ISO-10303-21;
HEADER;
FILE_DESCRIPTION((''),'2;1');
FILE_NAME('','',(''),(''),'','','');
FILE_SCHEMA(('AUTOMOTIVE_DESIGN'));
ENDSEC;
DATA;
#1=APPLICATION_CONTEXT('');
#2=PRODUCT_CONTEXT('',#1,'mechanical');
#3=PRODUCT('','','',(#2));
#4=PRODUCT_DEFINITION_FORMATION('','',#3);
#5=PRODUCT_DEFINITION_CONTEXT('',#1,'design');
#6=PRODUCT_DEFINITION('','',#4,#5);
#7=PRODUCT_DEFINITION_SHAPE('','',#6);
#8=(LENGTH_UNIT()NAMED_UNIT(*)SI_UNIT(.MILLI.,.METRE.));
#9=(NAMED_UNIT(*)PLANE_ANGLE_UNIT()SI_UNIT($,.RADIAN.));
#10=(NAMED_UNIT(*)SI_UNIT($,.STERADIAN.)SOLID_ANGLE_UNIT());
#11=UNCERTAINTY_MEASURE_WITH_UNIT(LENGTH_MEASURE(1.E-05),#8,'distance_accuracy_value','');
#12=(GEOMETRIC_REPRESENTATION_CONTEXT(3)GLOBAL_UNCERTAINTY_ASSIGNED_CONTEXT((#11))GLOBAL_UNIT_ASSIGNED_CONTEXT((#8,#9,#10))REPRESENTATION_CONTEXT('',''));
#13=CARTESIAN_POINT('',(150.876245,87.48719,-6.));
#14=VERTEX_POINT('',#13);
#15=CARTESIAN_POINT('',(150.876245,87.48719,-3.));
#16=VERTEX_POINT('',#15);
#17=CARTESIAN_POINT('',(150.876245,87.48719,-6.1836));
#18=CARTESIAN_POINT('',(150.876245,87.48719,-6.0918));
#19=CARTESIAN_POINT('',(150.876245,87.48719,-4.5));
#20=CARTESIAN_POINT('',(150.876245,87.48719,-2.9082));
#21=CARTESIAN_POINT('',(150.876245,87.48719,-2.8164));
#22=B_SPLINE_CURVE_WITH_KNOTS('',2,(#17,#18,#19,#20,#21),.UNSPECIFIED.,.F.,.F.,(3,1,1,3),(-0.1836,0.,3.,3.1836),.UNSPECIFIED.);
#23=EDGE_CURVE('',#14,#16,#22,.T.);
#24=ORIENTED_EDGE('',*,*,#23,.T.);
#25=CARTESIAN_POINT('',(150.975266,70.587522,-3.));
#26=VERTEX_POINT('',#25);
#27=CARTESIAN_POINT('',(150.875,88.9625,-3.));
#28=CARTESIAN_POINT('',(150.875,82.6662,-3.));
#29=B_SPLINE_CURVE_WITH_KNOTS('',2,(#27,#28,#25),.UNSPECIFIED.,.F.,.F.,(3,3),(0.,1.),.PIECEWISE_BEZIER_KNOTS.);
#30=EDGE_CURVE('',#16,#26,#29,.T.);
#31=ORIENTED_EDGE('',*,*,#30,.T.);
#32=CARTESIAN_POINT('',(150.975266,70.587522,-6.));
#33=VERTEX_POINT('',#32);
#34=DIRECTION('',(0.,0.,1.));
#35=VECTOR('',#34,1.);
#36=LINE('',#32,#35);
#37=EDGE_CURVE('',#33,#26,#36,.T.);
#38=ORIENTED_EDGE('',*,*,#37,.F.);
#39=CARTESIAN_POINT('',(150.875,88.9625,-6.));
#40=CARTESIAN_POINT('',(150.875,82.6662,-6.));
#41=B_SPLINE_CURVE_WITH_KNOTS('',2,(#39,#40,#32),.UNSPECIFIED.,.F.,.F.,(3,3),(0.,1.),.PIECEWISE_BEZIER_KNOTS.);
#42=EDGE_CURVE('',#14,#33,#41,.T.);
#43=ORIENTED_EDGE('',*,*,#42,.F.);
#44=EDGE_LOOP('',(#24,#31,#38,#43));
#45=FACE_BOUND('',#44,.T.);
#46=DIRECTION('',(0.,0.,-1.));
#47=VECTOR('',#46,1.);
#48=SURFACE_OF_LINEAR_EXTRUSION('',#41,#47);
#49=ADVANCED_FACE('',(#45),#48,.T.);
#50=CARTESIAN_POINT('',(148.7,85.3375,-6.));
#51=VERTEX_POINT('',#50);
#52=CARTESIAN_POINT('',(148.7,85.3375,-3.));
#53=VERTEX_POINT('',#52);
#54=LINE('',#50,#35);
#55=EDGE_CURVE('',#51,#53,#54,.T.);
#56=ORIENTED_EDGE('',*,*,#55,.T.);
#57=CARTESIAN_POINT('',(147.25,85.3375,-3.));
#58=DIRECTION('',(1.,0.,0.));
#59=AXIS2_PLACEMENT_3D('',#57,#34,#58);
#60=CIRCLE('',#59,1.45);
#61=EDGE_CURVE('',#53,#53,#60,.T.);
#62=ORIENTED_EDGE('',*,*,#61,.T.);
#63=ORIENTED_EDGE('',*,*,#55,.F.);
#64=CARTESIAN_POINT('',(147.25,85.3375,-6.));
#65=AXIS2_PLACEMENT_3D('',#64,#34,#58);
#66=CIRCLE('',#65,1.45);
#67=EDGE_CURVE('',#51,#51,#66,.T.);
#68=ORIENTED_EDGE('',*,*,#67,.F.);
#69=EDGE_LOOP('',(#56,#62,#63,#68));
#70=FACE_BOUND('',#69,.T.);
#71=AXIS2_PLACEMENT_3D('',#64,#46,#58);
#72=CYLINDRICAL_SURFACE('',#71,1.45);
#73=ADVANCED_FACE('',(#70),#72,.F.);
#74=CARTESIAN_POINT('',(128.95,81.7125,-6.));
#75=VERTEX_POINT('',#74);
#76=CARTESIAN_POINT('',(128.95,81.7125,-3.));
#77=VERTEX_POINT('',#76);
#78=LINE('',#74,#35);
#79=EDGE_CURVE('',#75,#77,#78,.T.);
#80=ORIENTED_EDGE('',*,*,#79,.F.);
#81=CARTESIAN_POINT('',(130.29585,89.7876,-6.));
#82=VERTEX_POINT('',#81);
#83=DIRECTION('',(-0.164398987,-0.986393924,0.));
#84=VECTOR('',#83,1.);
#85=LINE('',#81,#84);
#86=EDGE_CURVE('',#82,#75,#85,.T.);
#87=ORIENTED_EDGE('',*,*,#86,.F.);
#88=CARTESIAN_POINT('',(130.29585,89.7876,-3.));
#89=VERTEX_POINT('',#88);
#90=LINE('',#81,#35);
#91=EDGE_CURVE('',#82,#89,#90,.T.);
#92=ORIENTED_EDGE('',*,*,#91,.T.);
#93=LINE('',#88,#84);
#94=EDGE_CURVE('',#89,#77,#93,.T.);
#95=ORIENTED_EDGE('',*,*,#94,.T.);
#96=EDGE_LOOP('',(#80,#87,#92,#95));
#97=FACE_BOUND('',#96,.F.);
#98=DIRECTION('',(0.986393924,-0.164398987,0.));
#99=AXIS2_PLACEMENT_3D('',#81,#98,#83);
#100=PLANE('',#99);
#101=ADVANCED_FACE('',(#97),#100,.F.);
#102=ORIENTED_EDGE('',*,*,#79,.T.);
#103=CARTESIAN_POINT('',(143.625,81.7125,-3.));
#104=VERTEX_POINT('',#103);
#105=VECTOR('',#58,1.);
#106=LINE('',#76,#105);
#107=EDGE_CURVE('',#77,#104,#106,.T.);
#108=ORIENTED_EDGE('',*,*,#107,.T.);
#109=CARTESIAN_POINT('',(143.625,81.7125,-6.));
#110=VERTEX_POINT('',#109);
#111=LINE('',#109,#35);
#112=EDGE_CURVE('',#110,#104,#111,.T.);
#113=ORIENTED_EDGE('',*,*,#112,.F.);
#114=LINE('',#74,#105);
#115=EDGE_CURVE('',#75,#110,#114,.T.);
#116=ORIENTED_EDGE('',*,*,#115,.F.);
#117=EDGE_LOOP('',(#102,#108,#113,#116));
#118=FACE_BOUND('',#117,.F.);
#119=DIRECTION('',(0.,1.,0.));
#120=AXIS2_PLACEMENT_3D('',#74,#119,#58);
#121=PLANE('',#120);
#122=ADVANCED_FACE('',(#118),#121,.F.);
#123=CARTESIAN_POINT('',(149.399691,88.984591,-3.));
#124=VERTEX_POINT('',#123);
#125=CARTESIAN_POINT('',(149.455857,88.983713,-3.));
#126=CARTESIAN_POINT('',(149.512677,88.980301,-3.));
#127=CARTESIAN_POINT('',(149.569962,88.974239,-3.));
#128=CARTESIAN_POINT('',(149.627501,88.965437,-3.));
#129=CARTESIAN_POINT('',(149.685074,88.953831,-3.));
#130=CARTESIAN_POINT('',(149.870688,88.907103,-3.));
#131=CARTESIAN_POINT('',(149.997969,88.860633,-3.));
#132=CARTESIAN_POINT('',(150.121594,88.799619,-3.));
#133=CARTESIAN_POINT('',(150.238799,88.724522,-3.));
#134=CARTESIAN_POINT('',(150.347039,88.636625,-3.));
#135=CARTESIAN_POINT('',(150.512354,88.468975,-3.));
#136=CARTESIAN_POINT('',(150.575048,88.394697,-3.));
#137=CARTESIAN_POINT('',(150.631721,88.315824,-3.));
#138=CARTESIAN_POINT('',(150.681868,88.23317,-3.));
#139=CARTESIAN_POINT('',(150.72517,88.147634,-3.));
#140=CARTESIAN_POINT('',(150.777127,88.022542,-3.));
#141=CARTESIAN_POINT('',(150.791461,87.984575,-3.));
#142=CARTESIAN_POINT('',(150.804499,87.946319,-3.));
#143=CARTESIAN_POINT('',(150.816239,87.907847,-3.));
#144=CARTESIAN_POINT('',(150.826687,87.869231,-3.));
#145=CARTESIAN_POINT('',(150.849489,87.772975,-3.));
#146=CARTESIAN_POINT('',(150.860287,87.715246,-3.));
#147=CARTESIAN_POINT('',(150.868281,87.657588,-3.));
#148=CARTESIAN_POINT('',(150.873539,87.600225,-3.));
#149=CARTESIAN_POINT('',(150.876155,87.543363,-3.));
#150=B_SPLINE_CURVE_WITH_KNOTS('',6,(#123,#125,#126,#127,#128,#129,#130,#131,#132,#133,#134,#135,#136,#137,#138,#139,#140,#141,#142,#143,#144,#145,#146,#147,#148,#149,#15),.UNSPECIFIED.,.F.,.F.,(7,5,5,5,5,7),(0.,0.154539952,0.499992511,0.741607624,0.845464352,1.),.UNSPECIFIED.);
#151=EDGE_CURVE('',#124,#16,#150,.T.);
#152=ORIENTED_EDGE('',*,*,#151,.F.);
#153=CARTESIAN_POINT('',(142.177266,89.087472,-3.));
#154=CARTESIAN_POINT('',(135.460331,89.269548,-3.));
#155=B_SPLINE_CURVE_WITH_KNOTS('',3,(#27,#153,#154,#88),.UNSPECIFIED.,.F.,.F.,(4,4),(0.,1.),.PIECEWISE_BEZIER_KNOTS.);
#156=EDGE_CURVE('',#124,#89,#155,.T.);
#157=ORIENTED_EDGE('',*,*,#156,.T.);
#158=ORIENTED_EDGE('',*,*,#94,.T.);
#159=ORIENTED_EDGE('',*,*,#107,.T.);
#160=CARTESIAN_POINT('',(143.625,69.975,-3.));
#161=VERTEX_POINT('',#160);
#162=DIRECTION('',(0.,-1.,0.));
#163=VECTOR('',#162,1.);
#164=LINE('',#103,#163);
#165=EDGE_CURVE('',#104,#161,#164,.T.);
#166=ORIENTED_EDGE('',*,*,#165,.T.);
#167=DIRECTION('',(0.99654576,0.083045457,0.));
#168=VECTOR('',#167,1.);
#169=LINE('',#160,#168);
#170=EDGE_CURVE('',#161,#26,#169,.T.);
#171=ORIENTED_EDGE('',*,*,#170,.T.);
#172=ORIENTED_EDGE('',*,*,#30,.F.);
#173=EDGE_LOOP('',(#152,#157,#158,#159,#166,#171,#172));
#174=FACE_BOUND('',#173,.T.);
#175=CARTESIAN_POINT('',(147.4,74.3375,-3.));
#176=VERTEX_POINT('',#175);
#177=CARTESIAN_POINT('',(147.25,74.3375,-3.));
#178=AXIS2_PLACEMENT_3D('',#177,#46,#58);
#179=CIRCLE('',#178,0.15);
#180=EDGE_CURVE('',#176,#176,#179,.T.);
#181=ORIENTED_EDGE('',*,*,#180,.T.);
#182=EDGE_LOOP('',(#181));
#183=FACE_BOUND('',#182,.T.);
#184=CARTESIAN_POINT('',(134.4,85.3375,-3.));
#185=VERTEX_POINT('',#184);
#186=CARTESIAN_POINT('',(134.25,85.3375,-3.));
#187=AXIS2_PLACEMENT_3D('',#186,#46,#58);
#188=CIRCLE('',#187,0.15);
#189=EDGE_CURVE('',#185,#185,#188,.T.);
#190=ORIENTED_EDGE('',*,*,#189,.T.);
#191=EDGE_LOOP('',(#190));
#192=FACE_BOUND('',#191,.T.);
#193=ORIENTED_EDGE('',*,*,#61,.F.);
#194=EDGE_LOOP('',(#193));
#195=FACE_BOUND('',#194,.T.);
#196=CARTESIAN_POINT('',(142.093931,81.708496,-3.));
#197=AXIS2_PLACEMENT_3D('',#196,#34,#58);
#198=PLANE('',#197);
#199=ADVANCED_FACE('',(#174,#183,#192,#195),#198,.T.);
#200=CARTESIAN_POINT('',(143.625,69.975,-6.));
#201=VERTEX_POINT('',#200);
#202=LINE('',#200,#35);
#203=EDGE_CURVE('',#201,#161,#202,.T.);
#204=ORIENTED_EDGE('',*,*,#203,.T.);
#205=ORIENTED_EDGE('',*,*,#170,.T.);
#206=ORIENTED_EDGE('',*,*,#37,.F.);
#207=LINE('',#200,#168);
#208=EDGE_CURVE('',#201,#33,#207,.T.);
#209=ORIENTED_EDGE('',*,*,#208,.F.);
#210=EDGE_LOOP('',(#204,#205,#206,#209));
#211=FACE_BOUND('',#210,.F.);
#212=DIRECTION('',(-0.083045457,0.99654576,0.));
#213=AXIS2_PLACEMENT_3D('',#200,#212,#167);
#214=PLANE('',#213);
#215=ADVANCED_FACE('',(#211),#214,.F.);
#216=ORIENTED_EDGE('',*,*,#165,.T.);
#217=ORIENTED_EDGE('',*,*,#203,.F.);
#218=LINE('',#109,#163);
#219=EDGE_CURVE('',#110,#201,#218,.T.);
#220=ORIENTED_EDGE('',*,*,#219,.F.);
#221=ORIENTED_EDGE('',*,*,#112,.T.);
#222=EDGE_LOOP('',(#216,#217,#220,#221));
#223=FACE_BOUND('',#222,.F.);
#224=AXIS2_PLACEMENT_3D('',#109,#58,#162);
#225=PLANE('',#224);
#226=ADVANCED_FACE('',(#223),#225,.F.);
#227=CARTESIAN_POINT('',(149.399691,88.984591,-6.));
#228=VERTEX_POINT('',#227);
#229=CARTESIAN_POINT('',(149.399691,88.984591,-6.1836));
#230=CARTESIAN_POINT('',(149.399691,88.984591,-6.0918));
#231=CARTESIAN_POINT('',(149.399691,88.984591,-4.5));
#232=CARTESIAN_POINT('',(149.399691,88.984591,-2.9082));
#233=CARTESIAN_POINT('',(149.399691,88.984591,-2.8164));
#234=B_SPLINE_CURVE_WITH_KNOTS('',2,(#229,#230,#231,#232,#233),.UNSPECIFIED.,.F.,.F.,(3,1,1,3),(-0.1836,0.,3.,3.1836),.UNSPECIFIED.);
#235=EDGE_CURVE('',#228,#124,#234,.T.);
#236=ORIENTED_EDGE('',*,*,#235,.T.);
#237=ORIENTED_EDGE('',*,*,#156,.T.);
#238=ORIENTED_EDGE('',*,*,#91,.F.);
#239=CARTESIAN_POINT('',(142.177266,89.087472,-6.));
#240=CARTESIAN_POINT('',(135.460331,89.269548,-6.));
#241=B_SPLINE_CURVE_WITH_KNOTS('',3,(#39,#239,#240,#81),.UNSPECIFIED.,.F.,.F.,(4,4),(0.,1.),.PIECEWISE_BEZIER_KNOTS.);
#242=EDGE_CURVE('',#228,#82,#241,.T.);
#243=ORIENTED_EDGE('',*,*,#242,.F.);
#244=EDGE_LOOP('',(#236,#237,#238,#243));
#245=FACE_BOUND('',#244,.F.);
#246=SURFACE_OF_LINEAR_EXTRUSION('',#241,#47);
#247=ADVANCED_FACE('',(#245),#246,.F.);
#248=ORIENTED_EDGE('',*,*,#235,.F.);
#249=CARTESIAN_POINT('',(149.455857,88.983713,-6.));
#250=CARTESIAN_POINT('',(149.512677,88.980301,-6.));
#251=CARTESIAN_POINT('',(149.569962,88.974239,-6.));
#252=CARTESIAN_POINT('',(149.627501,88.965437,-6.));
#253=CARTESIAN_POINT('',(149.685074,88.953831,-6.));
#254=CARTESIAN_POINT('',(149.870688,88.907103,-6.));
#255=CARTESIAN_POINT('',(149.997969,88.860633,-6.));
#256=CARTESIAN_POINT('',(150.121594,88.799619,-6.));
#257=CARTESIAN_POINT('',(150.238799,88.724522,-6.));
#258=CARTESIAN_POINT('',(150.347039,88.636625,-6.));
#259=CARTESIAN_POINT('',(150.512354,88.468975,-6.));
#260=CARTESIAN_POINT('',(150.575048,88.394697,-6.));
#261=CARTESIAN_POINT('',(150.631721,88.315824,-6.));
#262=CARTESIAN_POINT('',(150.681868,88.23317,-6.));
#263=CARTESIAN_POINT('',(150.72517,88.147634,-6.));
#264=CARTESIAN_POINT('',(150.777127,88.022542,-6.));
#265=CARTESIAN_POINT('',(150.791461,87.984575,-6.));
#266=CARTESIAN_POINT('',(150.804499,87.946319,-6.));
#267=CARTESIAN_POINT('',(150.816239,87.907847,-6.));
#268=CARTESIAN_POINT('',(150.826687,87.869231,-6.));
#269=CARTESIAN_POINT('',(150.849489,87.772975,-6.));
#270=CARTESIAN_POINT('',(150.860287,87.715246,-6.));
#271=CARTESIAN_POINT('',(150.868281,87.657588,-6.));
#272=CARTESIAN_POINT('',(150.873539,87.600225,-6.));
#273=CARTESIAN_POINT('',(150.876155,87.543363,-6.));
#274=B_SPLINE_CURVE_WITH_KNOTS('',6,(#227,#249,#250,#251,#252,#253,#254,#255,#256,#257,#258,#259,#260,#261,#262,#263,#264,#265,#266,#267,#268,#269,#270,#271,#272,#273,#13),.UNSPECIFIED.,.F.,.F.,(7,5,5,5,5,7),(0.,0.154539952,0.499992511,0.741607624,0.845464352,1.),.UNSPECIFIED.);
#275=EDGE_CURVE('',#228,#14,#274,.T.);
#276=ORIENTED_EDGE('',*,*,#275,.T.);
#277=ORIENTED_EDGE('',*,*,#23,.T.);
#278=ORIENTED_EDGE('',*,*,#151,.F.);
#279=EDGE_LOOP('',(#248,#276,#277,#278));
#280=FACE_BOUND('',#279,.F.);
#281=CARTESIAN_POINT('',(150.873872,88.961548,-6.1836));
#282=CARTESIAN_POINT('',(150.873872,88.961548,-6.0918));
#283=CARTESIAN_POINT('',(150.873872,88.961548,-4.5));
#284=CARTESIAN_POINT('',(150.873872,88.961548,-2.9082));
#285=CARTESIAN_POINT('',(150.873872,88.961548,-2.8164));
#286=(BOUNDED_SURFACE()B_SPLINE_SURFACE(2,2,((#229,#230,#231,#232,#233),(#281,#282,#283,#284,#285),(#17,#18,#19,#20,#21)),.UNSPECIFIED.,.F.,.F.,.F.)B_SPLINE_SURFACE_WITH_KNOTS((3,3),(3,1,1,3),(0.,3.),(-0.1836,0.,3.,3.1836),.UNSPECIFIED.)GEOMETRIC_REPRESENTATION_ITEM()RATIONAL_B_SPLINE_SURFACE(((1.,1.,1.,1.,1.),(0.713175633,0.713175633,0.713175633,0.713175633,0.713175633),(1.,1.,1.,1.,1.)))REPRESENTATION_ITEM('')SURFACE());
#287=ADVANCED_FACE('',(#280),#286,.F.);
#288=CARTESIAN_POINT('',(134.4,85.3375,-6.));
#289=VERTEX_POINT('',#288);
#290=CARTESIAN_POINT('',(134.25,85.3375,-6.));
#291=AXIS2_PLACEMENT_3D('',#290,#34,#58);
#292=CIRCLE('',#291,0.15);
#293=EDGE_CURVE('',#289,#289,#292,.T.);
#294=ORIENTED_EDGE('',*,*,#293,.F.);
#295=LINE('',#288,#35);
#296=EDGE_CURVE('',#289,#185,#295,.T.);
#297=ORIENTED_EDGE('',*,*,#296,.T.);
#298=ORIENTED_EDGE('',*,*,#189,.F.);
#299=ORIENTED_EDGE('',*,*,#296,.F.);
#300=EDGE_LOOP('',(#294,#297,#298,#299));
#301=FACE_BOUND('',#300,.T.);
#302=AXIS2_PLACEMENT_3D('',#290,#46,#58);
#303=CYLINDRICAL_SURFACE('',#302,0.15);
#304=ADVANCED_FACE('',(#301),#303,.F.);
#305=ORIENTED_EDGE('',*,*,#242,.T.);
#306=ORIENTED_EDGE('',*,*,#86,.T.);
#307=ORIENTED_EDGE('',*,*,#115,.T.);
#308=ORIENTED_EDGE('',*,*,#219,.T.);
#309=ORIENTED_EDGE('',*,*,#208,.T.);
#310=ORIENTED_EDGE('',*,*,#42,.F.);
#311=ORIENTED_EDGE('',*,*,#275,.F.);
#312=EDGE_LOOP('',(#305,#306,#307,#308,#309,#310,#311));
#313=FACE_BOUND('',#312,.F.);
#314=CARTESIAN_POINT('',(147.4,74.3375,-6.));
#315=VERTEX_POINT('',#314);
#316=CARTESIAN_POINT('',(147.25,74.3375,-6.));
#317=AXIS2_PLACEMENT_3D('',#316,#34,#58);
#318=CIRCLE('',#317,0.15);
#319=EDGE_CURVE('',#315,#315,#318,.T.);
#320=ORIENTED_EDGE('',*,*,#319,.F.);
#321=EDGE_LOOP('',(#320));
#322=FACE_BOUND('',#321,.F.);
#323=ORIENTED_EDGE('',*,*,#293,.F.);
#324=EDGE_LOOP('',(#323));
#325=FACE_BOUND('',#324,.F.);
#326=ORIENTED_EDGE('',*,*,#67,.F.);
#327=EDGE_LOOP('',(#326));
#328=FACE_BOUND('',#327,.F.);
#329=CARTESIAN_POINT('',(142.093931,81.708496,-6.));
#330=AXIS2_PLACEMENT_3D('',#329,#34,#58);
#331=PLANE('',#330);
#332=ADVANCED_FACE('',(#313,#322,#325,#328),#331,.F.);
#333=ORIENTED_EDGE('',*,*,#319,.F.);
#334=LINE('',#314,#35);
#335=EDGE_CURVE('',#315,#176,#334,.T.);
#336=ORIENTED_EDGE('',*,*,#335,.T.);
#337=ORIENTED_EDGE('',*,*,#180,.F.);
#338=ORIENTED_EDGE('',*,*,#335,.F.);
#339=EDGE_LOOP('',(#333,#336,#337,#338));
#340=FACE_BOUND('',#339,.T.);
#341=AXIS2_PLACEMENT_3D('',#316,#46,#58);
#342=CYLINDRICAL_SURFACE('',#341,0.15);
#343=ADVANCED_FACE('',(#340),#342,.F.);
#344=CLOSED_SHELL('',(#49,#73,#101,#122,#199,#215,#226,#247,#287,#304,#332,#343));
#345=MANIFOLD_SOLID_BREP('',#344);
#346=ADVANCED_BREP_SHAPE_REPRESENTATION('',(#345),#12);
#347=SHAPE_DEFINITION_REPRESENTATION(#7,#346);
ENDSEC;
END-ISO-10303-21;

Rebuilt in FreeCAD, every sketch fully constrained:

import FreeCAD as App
import Part
import Sketcher
from FreeCAD import Vector


def edges_at(feature, points):
    """Names of the edges that pass closest to the given points."""
    edges = feature.Shape.Edges
    near = lambda p: min(range(len(edges)), key=lambda i: edges[i].distToShape(Part.Vertex(*p))[0])
    return sorted({f"Edge{near(p) + 1}" for p in points})

doc = App.newDocument("Part")
params = doc.addObject("Spreadsheet::Sheet", "Params")
for row, (alias, value) in enumerate([
    ("sketch1_diameter", "2.9 mm"),
    ("pad1_length", "3 mm"),
    ("sketch2_diameter", "0.3 mm"),
    ("pocket1_length", "22 mm"),
    ("fillet_radius", "1.5 mm"),
], start=1):
    params.set(f"A{row}", alias)
    params.set(f"B{row}", "=" + value)
    params.setAlias(f"B{row}", alias)

body = doc.addObject("PartDesign::Body", "Body")

# Sketch on XY plane
sketch1 = body.newObject("Sketcher::SketchObject", "Sketch")
sketch1.AttachmentSupport = (doc.getObject("XY_Plane"), [""])
sketch1.MapMode = "FlatFace"
sketch1.addGeometry(Part.BSplineCurve([Vector(150.875, 88.9625, 0), Vector(142.177266, 89.087472, 0), Vector(135.460331, 89.269548, 0), Vector(130.29585, 89.7876, 0)], [4, 4], [0, 1], False, 3, [1, 1, 1, 1], False), False)
sketch1.addGeometry(Part.LineSegment(Vector(130.29585, 89.7876, 0), Vector(128.95, 81.7125, 0)), False)
sketch1.addGeometry(Part.LineSegment(Vector(128.95, 81.7125, 0), Vector(143.625, 81.7125, 0)), False)
sketch1.addGeometry(Part.LineSegment(Vector(143.625, 81.7125, 0), Vector(143.625, 69.975, 0)), False)
sketch1.addGeometry(Part.LineSegment(Vector(143.625, 69.975, 0), Vector(150.975266, 70.587522, 0)), False)
sketch1.addGeometry(Part.BSplineCurve([Vector(150.875, 88.9625, 0), Vector(150.875, 82.6662, 0), Vector(150.975266, 70.587522, 0)], [3, 3], [0, 1], False, 2, [1, 1, 1], False), False)
sketch1.addGeometry(Part.Circle(Vector(147.25, 85.3375, 0), Vector(0, 0, 1), 1.45), False)
sketch1.addConstraint(Sketcher.Constraint("Block", 0))
sketch1.addConstraint(Sketcher.Constraint("Block", 5))
sketch1.addConstraint(Sketcher.Constraint("Coincident", 0, 2, 1, 1))
sketch1.addConstraint(Sketcher.Constraint("Coincident", 1, 2, 2, 1))
sketch1.addConstraint(Sketcher.Constraint("Coincident", 2, 2, 3, 1))
sketch1.addConstraint(Sketcher.Constraint("Coincident", 3, 2, 4, 1))
sketch1.addConstraint(Sketcher.Constraint("Coincident", 4, 2, 5, 2))
sketch1.addConstraint(Sketcher.Constraint("Horizontal", 2))
sketch1.addConstraint(Sketcher.Constraint("Vertical", 3))
sketch1.addConstraint(Sketcher.Constraint("Diameter", 6, 2.9))
sketch1.addConstraint(Sketcher.Constraint("DistanceX", 1, 2, 6, 3, 18.3))
sketch1.addConstraint(Sketcher.Constraint("DistanceX", 2, 1, 2, 2, 14.675))
sketch1.addConstraint(Sketcher.Constraint("DistanceX", -1, 1, 6, 3, 147.25))
sketch1.addConstraint(Sketcher.Constraint("DistanceY", 3, 2, 3, 1, 11.7375))
sketch1.addConstraint(Sketcher.Constraint("DistanceY", -1, 1, 3, 2, 69.975))
sketch1.addConstraint(Sketcher.Constraint("DistanceY", 1, 2, 6, 3, 3.625))
sketch1.setExpression("Constraints[9]", "Params.sketch1_diameter")
pad1 = body.newObject("PartDesign::Pad", "Pad")
pad1.Profile = sketch1
pad1.setExpression("Length", "Params.pad1_length")

# Sketch on XY plane
sketch2 = body.newObject("Sketcher::SketchObject", "Sketch001")
sketch2.AttachmentSupport = (doc.getObject("XY_Plane"), [""])
sketch2.MapMode = "FlatFace"
sketch2.addGeometry(Part.Circle(Vector(134.25, 85.34, 0), Vector(0, 0, 1), 0.15), False)
sketch2.addGeometry(Part.Circle(Vector(147.25, 74.34, 0), Vector(0, 0, 1), 0.15), False)
sketch2.addConstraint(Sketcher.Constraint("Equal", 0, 1))
sketch2.addConstraint(Sketcher.Constraint("Diameter", 0, 0.3))
sketch2.addConstraint(Sketcher.Constraint("DistanceX", 0, 3, 1, 3, 13.0))
sketch2.addConstraint(Sketcher.Constraint("DistanceY", 1, 3, 0, 3, 11.0))
sketch2.addConstraint(Sketcher.Constraint("DistanceX", -1, 1, 0, 3, 134.25))
sketch2.addConstraint(Sketcher.Constraint("DistanceY", -1, 1, 0, 3, 85.3375))
sketch2.setExpression("Constraints[1]", "Params.sketch2_diameter")
pocket1 = body.newObject("PartDesign::Pocket", "Pocket")
pocket1.Profile = sketch2
pocket1.setExpression("Length", "Params.pocket1_length")
pocket1.Reversed = True
doc.recompute()

fillet = body.newObject("PartDesign::Fillet", "Fillet")
fillet.Base = (pocket1, edges_at(pocket1, [(150.875, 88.963, 1.5)]))
fillet.setExpression("Radius", "Params.fillet_radius")
body2 = doc.addObject("PartDesign::Body", "Body001")
doc.recompute()

body.Placement = App.Placement(Vector(0, 0, -6), App.Rotation(Vector(0, 0, 1), 0))
boolean = body2.newObject("PartDesign::Boolean", "Boolean")
boolean.Type = "Fuse"
boolean.addObjects([body])

doc.recompute()
